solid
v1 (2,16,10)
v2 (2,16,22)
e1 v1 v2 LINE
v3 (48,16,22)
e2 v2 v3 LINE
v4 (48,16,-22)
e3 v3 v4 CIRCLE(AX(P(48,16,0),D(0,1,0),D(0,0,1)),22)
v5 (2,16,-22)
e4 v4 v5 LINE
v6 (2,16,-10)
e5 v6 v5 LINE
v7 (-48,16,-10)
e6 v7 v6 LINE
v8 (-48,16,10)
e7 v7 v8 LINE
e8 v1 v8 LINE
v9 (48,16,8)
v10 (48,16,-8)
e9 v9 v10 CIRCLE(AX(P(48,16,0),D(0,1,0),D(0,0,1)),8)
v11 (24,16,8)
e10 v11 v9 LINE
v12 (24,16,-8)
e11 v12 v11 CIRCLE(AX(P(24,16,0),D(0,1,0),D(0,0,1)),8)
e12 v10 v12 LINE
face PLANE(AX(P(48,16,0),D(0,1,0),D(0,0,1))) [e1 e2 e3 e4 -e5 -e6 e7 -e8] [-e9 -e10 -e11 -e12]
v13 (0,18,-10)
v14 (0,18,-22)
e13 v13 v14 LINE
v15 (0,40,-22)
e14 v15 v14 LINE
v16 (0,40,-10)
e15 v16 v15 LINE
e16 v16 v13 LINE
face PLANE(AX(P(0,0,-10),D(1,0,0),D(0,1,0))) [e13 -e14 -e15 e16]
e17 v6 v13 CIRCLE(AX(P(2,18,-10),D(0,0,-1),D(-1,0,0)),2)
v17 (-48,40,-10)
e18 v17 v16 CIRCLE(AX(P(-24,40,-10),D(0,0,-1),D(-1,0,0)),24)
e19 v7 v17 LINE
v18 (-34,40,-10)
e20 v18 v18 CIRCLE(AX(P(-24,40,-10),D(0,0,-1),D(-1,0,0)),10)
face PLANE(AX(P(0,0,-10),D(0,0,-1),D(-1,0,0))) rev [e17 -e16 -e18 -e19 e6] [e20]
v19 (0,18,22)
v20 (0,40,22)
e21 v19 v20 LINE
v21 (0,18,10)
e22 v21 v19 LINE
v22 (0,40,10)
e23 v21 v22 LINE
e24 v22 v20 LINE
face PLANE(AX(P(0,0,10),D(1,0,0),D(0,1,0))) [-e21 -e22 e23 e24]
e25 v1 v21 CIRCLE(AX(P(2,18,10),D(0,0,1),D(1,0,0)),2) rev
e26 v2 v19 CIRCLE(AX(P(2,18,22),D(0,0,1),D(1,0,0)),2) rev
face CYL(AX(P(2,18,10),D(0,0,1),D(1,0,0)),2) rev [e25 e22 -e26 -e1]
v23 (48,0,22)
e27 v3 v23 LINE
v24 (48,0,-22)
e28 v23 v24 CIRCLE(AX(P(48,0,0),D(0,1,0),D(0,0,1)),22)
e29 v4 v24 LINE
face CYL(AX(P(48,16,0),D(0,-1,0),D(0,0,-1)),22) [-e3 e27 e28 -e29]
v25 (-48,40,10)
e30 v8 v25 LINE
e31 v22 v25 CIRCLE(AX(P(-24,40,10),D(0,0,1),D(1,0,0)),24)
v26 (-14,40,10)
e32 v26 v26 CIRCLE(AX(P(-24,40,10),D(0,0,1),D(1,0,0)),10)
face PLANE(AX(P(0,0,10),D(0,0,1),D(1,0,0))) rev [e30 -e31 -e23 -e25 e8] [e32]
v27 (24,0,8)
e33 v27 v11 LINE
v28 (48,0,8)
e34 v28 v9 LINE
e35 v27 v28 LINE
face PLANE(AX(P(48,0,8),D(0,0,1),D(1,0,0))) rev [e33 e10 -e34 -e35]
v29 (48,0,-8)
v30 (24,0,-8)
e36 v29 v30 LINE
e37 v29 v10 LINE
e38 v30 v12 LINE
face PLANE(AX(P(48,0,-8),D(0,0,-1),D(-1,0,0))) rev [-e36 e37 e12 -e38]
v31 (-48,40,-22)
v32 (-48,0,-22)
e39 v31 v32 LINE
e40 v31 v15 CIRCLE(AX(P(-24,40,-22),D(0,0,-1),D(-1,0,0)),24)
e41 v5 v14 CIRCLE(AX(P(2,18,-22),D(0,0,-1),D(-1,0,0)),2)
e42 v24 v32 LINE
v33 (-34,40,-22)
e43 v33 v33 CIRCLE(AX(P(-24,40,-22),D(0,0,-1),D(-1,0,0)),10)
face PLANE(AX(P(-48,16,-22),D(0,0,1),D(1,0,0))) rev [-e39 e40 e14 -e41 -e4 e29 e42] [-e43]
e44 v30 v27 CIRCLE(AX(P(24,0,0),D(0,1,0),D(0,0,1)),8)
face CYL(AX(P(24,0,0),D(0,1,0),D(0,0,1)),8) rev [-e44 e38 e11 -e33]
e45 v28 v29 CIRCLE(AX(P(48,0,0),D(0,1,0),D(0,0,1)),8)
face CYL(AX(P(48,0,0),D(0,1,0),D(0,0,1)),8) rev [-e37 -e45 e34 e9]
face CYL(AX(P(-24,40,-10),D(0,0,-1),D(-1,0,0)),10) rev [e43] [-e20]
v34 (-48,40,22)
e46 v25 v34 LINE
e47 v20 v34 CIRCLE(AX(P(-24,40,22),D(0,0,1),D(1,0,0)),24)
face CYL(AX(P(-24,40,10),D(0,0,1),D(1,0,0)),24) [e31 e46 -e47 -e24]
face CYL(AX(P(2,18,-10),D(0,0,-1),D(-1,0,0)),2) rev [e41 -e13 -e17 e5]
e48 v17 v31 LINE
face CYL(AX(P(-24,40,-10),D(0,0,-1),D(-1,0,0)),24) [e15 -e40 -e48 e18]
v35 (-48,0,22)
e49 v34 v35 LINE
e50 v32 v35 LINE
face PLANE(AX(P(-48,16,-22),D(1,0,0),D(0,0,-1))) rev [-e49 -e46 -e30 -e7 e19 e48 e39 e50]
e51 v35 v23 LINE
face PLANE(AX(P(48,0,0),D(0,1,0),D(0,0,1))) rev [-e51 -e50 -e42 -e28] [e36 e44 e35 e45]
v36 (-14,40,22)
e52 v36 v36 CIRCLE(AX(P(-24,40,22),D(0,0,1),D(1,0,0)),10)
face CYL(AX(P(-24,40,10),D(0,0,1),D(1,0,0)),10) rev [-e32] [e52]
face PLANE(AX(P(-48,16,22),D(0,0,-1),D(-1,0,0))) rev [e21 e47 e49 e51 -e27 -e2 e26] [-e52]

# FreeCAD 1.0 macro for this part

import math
import FreeCAD as App
import Part
import Sketcher

V = App.Vector

doc = App.newDocument("Part")
body = doc.addObject("PartDesign::Body", "Body")

# Sketch on XZ plane
sketch1 = doc.addObject("Sketcher::SketchObject", "Sketch")
body.addObject(sketch1)
sketch1.AttachmentSupport = (doc.XZ_Plane, [""])
sketch1.MapMode = "FlatFace"
sketch1.addGeometry(Part.LineSegment(V(48, -22, 0), V(-48, -22, 0)), False)
sketch1.addGeometry(Part.LineSegment(V(-48, -22, 0), V(-48, 22, 0)), False)
sketch1.addGeometry(Part.LineSegment(V(-48, 22, 0), V(48, 22, 0)), False)
sketch1.addGeometry(Part.ArcOfCircle(Part.Circle(V(48, 0, 0), V(0, 0, 1), 22), math.radians(-90), math.radians(90)), False)
sketch1.addConstraint(Sketcher.Constraint("Coincident", 0, 2, 1, 1))
sketch1.addConstraint(Sketcher.Constraint("Coincident", 1, 2, 2, 1))
sketch1.addConstraint(Sketcher.Constraint("Tangent", 2, 2, 3, 2))
sketch1.addConstraint(Sketcher.Constraint("Tangent", 3, 1, 0, 1))
sketch1.addConstraint(Sketcher.Constraint("Horizontal", 0))
sketch1.addConstraint(Sketcher.Constraint("Vertical", 1))
sketch1.addConstraint(Sketcher.Constraint("Horizontal", 2))
sketch1.addConstraint(Sketcher.Constraint("Symmetric", 0, 2, 2, 2, -1, 1))
sketch1.addConstraint(Sketcher.Constraint("Radius", 3, 22.0))
sketch1.addConstraint(Sketcher.Constraint("DistanceX", 0, 2, 0, 1, 96.0))
pad1 = doc.addObject("PartDesign::Pad", "Pad")
body.addObject(pad1)
pad1.Profile = sketch1
pad1.Length = 16
pad1.Reversed = True

# Sketch on XZ plane
sketch2 = doc.addObject("Sketcher::SketchObject", "Sketch001")
body.addObject(sketch2)
sketch2.AttachmentSupport = (doc.XZ_Plane, [""])
sketch2.MapMode = "FlatFace"
sketch2.AttachmentOffset = App.Placement(V(0, 0, -16), App.Rotation())
sketch2.addGeometry(Part.LineSegment(V(24, 8, 0), V(48, 8, 0)), False)
sketch2.addGeometry(Part.ArcOfCircle(Part.Circle(V(48, 0, 0), V(0, 0, 1), 8), math.radians(-90), math.radians(90)), False)
sketch2.addGeometry(Part.LineSegment(V(48, -8, 0), V(24, -8, 0)), False)
sketch2.addGeometry(Part.ArcOfCircle(Part.Circle(V(24, 0, 0), V(0, 0, 1), 8), math.radians(90), math.radians(270)), False)
sketch2.addConstraint(Sketcher.Constraint("Tangent", 0, 2, 1, 2))
sketch2.addConstraint(Sketcher.Constraint("Tangent", 1, 1, 2, 1))
sketch2.addConstraint(Sketcher.Constraint("Tangent", 2, 2, 3, 2))
sketch2.addConstraint(Sketcher.Constraint("Tangent", 3, 1, 0, 1))
sketch2.addConstraint(Sketcher.Constraint("Horizontal", 0))
sketch2.addConstraint(Sketcher.Constraint("Horizontal", 2))
sketch2.addConstraint(Sketcher.Constraint("PointOnObject", 1, 3, -1))
sketch2.addConstraint(Sketcher.Constraint("Radius", 1, 8.0))
sketch2.addConstraint(Sketcher.Constraint("DistanceX", 0, 1, 0, 2, 24.0))
sketch2.addConstraint(Sketcher.Constraint("DistanceX", -1, 1, 1, 3, 48.0))
pocket1 = doc.addObject("PartDesign::Pocket", "Pocket")
body.addObject(pocket1)
pocket1.Profile = sketch2
pocket1.Length = 16
pocket1.Reversed = True

# Sketch on XY plane
sketch3 = doc.addObject("Sketcher::SketchObject", "Sketch002")
body.addObject(sketch3)
sketch3.AttachmentSupport = (doc.XY_Plane, [""])
sketch3.MapMode = "FlatFace"
sketch3.AttachmentOffset = App.Placement(V(0, 0, 22), App.Rotation())
sketch3.addGeometry(Part.LineSegment(V(-48, 40, 0), V(-48, 16, 0)), False)
sketch3.addGeometry(Part.LineSegment(V(-48, 16, 0), V(2, 16, 0)), False)
sketch3.addGeometry(Part.ArcOfCircle(Part.Circle(V(2, 18, 0), V(0, 0, 1), 2), math.radians(-180), math.radians(-90)), False)
sketch3.addGeometry(Part.LineSegment(V(0, 18, 0), V(0, 40, 0)), False)
sketch3.addGeometry(Part.ArcOfCircle(Part.Circle(V(-24, 40, 0), V(0, 0, 1), 24), math.radians(0), math.radians(180)), False)
sketch3.addGeometry(Part.Circle(V(-24, 40, 0), V(0, 0, 1), 10), False)
sketch3.addConstraint(Sketcher.Constraint("Coincident", 0, 2, 1, 1))
sketch3.addConstraint(Sketcher.Constraint("Tangent", 1, 2, 2, 2))
sketch3.addConstraint(Sketcher.Constraint("Tangent", 2, 1, 3, 1))
sketch3.addConstraint(Sketcher.Constraint("Tangent", 3, 2, 4, 1))
sketch3.addConstraint(Sketcher.Constraint("Tangent", 4, 2, 0, 1))
sketch3.addConstraint(Sketcher.Constraint("Vertical", 0))
sketch3.addConstraint(Sketcher.Constraint("Horizontal", 1))
sketch3.addConstraint(Sketcher.Constraint("Vertical", 3))
sketch3.addConstraint(Sketcher.Constraint("Coincident", 5, 3, 4, 3))
sketch3.addConstraint(Sketcher.Constraint("PointOnObject", 2, 1, -2))
sketch3.addConstraint(Sketcher.Constraint("Diameter", 5, 20.0))
sketch3.addConstraint(Sketcher.Constraint("Radius", 2, 2.0))
sketch3.addConstraint(Sketcher.Constraint("Radius", 4, 24.0))
sketch3.addConstraint(Sketcher.Constraint("DistanceY", 0, 2, 0, 1, 24.0))
sketch3.addConstraint(Sketcher.Constraint("DistanceY", -1, 1, 2, 3, 18.0))
pad2 = doc.addObject("PartDesign::Pad", "Pad001")
body.addObject(pad2)
pad2.Profile = sketch3
pad2.Length = 12
pad2.Reversed = True

# Sketch on XY plane
sketch4 = doc.addObject("Sketcher::SketchObject", "Sketch003")
body.addObject(sketch4)
sketch4.AttachmentSupport = (doc.XY_Plane, [""])
sketch4.MapMode = "FlatFace"
sketch4.AttachmentOffset = App.Placement(V(0, 0, -22), App.Rotation())
sketch4.addGeometry(Part.LineSegment(V(2, 16, 0), V(-48, 16, 0)), False)
sketch4.addGeometry(Part.LineSegment(V(-48, 16, 0), V(-48, 40, 0)), False)
sketch4.addGeometry(Part.ArcOfCircle(Part.Circle(V(-24, 40, 0), V(0, 0, 1), 24), math.radians(0), math.radians(180)), False)
sketch4.addGeometry(Part.LineSegment(V(0, 40, 0), V(0, 18, 0)), False)
sketch4.addGeometry(Part.ArcOfCircle(Part.Circle(V(2, 18, 0), V(0, 0, 1), 2), math.radians(-180), math.radians(-90)), False)
sketch4.addGeometry(Part.Circle(V(-24, 40, 0), V(0, 0, 1), 10), False)
sketch4.addConstraint(Sketcher.Constraint("Coincident", 0, 2, 1, 1))
sketch4.addConstraint(Sketcher.Constraint("Tangent", 1, 2, 2, 2))
sketch4.addConstraint(Sketcher.Constraint("Tangent", 2, 1, 3, 1))
sketch4.addConstraint(Sketcher.Constraint("Tangent", 3, 2, 4, 1))
sketch4.addConstraint(Sketcher.Constraint("Tangent", 4, 2, 0, 1))
sketch4.addConstraint(Sketcher.Constraint("Horizontal", 0))
sketch4.addConstraint(Sketcher.Constraint("Vertical", 1))
sketch4.addConstraint(Sketcher.Constraint("Vertical", 3))
sketch4.addConstraint(Sketcher.Constraint("Coincident", 5, 3, 2, 3))
sketch4.addConstraint(Sketcher.Constraint("PointOnObject", 2, 1, -2))
sketch4.addConstraint(Sketcher.Constraint("Diameter", 5, 20.0))
sketch4.addConstraint(Sketcher.Constraint("Radius", 2, 24.0))
sketch4.addConstraint(Sketcher.Constraint("Radius", 4, 2.0))
sketch4.addConstraint(Sketcher.Constraint("DistanceY", 1, 1, 1, 2, 24.0))
sketch4.addConstraint(Sketcher.Constraint("DistanceY", -1, 1, 2, 3, 40.0))
pad3 = doc.addObject("PartDesign::Pad", "Pad002")
body.addObject(pad3)
pad3.Profile = sketch4
pad3.Length = 12

doc.recompute()
